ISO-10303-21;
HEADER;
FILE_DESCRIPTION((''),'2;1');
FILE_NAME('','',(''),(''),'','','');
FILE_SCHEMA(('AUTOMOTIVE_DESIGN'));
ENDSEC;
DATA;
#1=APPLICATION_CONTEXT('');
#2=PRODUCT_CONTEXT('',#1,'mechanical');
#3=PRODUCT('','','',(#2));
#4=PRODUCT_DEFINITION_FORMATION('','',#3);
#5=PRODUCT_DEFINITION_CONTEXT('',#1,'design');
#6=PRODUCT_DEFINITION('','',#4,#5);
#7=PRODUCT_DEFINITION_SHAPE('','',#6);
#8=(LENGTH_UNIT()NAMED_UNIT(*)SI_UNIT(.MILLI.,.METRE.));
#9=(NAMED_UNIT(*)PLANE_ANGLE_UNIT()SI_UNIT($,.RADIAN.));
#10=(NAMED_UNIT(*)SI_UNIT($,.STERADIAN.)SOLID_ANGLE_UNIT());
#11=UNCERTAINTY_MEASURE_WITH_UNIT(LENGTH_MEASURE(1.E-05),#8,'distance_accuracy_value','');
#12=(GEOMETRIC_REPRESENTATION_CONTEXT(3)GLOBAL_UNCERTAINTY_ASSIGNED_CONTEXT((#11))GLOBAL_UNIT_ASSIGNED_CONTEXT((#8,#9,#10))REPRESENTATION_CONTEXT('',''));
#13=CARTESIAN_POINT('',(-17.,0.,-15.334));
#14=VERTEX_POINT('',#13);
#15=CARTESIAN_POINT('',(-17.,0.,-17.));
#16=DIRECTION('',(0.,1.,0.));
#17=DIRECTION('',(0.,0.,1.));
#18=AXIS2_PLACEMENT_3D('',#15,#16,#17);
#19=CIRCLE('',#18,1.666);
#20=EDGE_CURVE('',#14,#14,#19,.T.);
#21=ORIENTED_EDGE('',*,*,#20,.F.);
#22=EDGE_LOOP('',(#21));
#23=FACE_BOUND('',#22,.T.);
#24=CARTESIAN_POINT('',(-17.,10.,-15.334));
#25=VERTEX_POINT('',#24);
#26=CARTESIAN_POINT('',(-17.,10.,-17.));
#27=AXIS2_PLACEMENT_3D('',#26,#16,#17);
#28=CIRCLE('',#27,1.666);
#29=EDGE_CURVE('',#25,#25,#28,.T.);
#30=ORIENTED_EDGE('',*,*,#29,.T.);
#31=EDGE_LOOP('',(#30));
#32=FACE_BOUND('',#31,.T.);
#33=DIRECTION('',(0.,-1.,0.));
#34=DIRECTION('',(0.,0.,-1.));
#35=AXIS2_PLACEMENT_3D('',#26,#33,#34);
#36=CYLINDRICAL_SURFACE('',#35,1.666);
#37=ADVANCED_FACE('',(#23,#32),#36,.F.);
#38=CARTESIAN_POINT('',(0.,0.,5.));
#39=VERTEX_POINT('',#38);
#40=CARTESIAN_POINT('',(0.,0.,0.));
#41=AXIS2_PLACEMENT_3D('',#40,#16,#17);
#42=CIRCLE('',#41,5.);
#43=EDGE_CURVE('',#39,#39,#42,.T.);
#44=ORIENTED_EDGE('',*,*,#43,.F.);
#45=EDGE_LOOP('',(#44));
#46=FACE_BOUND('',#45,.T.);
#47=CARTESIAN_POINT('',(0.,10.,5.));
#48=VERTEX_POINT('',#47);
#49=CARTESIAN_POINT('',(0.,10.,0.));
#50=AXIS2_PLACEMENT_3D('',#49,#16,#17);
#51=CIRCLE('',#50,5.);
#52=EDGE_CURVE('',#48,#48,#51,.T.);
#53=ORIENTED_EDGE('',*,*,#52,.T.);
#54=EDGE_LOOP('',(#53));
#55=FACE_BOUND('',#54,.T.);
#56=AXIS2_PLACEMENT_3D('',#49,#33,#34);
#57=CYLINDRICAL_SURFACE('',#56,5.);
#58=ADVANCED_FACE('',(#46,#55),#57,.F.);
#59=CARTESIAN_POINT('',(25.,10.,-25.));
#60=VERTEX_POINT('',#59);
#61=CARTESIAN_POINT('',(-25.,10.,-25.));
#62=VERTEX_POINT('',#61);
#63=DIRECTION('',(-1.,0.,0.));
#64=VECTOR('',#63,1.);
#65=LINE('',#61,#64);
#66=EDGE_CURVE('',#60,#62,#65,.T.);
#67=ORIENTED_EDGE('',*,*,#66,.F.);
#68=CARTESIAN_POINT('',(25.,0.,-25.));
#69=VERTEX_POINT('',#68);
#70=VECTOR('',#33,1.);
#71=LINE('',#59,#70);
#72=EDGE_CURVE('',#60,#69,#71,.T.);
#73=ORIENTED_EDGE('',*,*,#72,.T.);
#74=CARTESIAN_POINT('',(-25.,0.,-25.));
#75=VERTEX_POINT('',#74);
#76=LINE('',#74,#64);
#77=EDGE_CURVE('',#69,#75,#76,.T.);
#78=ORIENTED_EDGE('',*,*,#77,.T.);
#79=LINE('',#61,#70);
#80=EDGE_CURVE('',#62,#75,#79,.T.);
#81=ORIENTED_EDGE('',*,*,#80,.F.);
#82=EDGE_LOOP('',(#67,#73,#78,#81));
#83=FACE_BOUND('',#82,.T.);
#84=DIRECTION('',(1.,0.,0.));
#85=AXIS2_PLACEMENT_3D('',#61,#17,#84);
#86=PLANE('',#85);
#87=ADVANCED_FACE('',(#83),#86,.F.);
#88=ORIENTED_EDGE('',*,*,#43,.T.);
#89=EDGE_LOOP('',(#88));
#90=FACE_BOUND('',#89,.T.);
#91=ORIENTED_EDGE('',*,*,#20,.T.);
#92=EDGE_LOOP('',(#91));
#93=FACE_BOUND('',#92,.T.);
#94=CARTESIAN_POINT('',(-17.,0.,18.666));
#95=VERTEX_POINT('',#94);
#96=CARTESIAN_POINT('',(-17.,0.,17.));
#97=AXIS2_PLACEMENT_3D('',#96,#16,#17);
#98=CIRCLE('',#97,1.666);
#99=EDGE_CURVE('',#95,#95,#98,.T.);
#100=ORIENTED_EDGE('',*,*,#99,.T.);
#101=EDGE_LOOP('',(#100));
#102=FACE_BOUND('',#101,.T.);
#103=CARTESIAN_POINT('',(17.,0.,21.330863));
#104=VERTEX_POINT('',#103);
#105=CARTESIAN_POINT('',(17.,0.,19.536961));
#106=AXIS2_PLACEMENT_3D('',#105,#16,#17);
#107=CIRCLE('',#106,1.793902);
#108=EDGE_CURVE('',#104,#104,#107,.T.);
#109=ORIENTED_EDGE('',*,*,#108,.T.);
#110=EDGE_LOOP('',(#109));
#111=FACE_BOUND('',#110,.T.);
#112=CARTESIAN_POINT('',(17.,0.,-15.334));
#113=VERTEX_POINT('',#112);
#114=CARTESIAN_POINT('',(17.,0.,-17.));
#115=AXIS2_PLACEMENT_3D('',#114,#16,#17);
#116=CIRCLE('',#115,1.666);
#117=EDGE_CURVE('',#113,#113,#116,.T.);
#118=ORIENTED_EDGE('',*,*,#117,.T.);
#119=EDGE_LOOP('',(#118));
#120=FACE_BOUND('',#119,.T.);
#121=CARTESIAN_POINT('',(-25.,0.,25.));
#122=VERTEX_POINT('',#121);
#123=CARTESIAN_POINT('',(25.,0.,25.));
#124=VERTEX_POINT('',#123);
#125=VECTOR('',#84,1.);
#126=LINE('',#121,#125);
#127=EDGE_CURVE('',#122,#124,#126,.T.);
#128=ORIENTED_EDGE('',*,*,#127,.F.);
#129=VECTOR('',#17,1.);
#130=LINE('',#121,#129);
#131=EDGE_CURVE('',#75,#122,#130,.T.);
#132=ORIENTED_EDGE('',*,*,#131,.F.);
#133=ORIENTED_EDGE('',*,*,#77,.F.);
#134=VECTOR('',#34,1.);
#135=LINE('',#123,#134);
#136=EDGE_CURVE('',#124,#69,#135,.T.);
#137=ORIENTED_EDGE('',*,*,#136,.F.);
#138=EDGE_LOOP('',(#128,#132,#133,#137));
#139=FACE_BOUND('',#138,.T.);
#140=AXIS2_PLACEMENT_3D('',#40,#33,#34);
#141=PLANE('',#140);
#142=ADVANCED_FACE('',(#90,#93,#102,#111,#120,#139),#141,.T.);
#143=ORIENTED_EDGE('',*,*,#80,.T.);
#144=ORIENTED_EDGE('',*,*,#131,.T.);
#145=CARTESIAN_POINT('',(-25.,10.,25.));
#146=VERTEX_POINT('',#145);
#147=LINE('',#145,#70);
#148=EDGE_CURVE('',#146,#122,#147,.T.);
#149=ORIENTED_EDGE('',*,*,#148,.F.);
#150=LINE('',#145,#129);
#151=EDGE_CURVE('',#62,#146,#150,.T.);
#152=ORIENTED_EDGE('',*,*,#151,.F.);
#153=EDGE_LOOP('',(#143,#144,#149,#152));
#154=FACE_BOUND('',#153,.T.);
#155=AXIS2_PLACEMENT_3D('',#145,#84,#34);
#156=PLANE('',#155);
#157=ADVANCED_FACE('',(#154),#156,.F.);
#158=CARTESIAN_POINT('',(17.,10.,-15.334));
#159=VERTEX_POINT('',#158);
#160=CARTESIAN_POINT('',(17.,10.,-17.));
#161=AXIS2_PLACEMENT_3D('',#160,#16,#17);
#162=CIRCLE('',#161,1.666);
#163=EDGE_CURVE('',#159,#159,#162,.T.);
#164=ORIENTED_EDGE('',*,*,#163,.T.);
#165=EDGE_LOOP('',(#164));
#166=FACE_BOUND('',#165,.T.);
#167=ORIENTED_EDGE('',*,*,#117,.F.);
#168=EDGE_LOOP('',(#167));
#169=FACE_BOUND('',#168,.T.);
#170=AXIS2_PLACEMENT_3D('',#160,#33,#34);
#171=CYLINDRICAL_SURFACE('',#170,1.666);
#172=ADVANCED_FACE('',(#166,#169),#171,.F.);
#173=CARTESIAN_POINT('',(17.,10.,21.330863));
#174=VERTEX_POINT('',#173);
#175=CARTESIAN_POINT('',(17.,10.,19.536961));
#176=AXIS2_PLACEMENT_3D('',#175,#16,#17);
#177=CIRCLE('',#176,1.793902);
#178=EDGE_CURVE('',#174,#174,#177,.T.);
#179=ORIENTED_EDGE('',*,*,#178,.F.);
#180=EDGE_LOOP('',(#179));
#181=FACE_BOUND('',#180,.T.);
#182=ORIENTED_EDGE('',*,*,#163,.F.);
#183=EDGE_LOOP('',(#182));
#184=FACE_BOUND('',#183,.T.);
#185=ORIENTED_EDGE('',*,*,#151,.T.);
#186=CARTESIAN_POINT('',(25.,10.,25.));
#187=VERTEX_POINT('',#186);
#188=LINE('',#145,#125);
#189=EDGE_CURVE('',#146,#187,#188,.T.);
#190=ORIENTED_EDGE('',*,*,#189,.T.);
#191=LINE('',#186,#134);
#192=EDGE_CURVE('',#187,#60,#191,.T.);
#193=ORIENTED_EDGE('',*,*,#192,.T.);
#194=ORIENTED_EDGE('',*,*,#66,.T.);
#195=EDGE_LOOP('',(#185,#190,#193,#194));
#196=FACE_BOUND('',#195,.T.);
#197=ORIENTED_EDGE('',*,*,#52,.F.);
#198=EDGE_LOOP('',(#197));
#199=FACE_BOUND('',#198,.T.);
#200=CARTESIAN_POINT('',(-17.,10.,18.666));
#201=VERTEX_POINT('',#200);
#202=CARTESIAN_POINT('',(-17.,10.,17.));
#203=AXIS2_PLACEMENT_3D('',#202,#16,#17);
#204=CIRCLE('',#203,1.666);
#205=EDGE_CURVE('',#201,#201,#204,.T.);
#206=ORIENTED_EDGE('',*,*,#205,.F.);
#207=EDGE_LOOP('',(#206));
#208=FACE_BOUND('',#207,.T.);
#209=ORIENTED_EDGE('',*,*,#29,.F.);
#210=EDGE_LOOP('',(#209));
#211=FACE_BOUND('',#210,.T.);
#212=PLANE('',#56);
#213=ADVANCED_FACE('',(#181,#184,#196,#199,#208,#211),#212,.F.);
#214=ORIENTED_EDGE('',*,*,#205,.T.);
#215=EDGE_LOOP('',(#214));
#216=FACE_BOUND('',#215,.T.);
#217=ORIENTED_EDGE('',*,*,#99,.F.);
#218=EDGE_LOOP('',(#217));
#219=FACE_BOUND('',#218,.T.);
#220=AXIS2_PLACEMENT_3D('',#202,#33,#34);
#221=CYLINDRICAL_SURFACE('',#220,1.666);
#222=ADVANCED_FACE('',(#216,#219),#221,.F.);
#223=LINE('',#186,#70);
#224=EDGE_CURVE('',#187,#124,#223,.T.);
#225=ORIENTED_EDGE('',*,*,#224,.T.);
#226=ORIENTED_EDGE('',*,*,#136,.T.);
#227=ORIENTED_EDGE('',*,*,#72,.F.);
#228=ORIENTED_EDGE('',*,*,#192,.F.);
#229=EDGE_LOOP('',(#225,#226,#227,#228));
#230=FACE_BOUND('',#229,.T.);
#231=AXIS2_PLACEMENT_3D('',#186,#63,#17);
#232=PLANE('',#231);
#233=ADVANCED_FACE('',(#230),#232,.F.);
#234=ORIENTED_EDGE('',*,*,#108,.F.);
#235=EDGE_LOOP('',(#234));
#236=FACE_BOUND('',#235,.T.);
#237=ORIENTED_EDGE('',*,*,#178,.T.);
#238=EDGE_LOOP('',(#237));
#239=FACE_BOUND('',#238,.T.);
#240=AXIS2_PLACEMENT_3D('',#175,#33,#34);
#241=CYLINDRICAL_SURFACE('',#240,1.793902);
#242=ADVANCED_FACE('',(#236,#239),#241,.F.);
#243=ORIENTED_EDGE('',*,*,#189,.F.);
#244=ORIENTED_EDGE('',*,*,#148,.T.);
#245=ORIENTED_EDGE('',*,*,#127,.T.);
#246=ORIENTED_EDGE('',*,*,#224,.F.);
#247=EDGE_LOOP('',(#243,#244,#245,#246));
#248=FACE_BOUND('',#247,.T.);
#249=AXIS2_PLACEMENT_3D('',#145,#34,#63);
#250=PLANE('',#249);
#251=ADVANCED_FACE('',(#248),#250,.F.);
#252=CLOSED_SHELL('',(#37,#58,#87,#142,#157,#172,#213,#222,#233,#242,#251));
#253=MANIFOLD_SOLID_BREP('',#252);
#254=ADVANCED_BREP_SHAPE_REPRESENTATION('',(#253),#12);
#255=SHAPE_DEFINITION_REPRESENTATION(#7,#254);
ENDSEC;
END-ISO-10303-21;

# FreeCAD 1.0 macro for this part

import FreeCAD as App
import Part
import Sketcher

V = App.Vector
Q = App.Units.Quantity


def add_polygon(sketch, points):
    """Adds a closed chain of lines whose ends are joined by coincident constraints."""
    first, n = sketch.GeometryCount, len(points)
    for a, b in zip(points, points[1:] + points[:1]):
        sketch.addGeometry(Part.LineSegment(App.Vector(*a, 0), App.Vector(*b, 0)), False)
    for i in range(n):
        sketch.addConstraint(Sketcher.Constraint("Coincident", first + i, 2, first + (i + 1) % n, 1))

doc = App.newDocument("Part")
body = doc.addObject("PartDesign::Body", "Body")

sketch1 = doc.addObject("Sketcher::SketchObject", "Sketch")
body.addObject(sketch1)
sketch1.AttachmentSupport = (doc.XZ_Plane, [""])
sketch1.MapMode = "FlatFace"
add_polygon(sketch1, [(-25, -25), (-25, 25), (25, 25), (25, -25)])
sketch1.addGeometry(Part.Circle(V(-17, 17, 0), V(0, 0, 1), 1.7), False)
sketch1.addGeometry(Part.Circle(V(17, 19.5, 0), V(0, 0, 1), 1.8), False)
sketch1.addGeometry(Part.Circle(V(0, 0, 0), V(0, 0, 1), 5), False)
sketch1.addGeometry(Part.Circle(V(-17, -17, 0), V(0, 0, 1), 1.7), False)
sketch1.addGeometry(Part.Circle(V(17, -17, 0), V(0, 0, 1), 1.7), False)
sketch1.addConstraint([
    Sketcher.Constraint("Vertical", 0),
    Sketcher.Constraint("Horizontal", 1),
    Sketcher.Constraint("Vertical", 2),
    Sketcher.Constraint("Horizontal", 3),
    Sketcher.Constraint("Coincident", 6, 3, -1, 1),
    Sketcher.Constraint("Equal", 4, 7),
    Sketcher.Constraint("Equal", 7, 8),
    Sketcher.Constraint("Symmetric", 4, 3, 8, 3, -1, 1),
    Sketcher.Constraint("Symmetric", 0, 2, 2, 2, -1, 1),
    Sketcher.Constraint("Symmetric", 7, 3, 8, 3, -2),
    Sketcher.Constraint("Vertical", 5, 3, 8, 3),
    Sketcher.Constraint("Equal", 3, 0),
    Sketcher.Constraint("Diameter", 6, Q("10 mm")),
    Sketcher.Constraint("DistanceX", 1, 1, 1, 2, Q("50 mm")),
    Sketcher.Constraint("Diameter", 4, Q("3.332 mm")),
    Sketcher.Constraint("DistanceX", 4, 3, -1, 1, Q("17 mm")),
    Sketcher.Constraint("DistanceY", -1, 1, 4, 3, Q("17 mm")),
    Sketcher.Constraint("Diameter", 5, Q("3.587805 mm")),
    Sketcher.Constraint("DistanceY", -1, 1, 5, 3, Q("19.536961 mm")),
])
pad1 = doc.addObject("PartDesign::Pad", "Pad")
body.addObject(pad1)
pad1.Profile = sketch1
pad1.Length = 10
pad1.Reversed = True

doc.recompute()
